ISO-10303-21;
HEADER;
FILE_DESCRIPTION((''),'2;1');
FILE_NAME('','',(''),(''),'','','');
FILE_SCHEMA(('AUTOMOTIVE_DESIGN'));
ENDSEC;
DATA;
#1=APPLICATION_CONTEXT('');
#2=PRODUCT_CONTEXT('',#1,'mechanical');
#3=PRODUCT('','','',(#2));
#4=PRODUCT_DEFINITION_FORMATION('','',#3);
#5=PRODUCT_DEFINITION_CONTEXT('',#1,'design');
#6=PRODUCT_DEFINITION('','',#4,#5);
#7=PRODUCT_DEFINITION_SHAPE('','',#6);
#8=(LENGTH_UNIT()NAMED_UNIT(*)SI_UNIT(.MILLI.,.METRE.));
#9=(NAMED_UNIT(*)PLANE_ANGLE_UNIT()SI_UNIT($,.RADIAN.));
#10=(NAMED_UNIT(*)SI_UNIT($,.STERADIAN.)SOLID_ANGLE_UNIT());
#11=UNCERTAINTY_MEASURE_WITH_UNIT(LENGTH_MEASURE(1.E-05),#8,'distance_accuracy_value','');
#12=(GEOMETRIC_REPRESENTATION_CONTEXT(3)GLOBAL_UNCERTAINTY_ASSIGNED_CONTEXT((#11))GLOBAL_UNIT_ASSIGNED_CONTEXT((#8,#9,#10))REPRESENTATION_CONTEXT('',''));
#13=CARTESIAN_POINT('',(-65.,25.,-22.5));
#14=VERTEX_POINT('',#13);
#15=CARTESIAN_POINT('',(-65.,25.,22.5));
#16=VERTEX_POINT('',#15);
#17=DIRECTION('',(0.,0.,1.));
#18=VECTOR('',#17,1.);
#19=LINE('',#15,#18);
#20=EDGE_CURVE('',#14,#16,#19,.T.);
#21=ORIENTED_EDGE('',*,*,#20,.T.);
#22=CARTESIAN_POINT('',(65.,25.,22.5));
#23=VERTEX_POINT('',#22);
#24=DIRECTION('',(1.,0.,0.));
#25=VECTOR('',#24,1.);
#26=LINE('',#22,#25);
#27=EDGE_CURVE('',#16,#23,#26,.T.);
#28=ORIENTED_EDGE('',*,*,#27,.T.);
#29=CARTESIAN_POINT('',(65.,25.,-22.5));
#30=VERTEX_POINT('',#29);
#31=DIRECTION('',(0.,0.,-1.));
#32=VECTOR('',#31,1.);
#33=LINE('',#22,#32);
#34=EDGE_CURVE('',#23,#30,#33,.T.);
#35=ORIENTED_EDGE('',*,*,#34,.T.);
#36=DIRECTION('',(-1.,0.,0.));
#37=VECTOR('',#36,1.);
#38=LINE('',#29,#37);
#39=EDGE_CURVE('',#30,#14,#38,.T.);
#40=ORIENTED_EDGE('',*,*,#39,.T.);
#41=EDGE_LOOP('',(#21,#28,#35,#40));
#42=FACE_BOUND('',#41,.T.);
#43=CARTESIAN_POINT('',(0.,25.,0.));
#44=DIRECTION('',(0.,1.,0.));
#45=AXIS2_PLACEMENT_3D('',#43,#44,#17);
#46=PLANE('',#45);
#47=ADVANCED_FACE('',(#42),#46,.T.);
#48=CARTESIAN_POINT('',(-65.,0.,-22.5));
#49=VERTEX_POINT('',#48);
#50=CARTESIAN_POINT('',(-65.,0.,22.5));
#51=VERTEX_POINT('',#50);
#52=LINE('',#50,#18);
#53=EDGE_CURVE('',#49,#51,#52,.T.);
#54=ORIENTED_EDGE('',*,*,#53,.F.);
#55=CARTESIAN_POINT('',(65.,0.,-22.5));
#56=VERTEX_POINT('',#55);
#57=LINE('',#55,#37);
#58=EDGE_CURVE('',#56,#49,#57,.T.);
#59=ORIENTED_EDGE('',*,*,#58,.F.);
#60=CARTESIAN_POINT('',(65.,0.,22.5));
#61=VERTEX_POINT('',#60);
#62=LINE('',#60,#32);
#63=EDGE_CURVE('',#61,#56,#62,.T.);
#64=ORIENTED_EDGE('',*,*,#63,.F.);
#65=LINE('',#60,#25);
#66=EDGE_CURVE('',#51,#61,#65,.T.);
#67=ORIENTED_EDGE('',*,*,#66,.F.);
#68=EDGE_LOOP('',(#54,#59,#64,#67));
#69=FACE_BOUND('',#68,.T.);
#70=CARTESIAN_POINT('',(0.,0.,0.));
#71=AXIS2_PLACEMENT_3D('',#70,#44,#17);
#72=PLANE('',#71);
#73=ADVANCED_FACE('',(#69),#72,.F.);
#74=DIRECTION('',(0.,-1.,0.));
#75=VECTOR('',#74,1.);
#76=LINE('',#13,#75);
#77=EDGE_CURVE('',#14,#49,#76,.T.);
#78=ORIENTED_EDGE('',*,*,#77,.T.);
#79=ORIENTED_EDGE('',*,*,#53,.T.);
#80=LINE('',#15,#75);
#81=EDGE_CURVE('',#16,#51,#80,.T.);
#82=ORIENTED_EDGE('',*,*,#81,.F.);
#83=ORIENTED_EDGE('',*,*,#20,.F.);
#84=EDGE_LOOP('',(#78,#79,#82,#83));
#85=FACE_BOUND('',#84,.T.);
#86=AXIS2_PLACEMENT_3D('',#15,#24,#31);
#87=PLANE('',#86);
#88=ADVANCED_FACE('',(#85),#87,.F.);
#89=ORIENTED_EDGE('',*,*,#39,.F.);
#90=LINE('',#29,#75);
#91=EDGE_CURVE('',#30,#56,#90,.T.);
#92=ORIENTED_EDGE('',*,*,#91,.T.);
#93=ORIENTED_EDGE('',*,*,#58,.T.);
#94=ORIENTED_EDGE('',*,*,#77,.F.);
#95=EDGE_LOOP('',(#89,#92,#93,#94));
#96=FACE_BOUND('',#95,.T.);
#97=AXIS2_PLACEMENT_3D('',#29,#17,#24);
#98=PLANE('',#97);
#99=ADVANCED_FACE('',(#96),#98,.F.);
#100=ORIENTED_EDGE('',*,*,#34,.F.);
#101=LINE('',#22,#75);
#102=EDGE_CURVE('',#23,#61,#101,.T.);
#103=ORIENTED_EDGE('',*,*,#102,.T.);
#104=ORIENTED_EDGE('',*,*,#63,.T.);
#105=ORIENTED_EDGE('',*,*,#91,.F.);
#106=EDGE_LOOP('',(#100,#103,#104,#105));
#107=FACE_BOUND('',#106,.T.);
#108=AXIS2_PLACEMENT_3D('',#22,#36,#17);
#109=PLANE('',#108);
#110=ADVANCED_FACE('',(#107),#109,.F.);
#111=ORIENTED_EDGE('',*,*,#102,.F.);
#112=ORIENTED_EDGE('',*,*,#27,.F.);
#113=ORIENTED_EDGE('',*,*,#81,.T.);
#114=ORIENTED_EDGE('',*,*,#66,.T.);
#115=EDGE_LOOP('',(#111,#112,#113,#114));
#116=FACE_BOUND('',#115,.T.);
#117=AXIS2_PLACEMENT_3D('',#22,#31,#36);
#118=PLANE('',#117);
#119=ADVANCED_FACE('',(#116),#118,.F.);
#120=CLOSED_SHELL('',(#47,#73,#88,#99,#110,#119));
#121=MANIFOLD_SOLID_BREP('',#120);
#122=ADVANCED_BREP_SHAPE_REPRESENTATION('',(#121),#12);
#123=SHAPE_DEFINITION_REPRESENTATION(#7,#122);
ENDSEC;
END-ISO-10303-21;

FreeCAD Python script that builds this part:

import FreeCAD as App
import Part
import Sketcher
from FreeCAD import Vector

doc = App.newDocument("Part")
body = doc.addObject("PartDesign::Body", "Body")

sketch1 = body.newObject("Sketcher::SketchObject", "Sketch")
sketch1.AttachmentSupport = (doc.getObject("XZ_Plane"), [""])
sketch1.MapMode = "FlatFace"
sketch1.addGeometry([
    Part.LineSegment(Vector(-65, -22, 0), Vector(-65, 22, 0)),
    Part.LineSegment(Vector(-65, 22, 0), Vector(65, 22, 0)),
    Part.LineSegment(Vector(65, 22, 0), Vector(65, -22, 0)),
    Part.LineSegment(Vector(65, -22, 0), Vector(-65, -22, 0)),
], False)
sketch1.addConstraint([
    Sketcher.Constraint("Coincident", 0, 2, 1, 1),
    Sketcher.Constraint("Coincident", 1, 2, 2, 1),
    Sketcher.Constraint("Coincident", 2, 2, 3, 1),
    Sketcher.Constraint("Coincident", 3, 2, 0, 1),
    Sketcher.Constraint("Vertical", 0),
    Sketcher.Constraint("Horizontal", 1),
    Sketcher.Constraint("Vertical", 2),
    Sketcher.Constraint("Horizontal", 3),
    Sketcher.Constraint("Symmetric", 0, 2, 2, 2, -1, 1),
    Sketcher.Constraint("DistanceX", 1, 1, 1, 2, 130.0),
    Sketcher.Constraint("DistanceY", 0, 1, 0, 2, 45.0),
])
pad1 = body.newObject("PartDesign::Pad", "Pad")
pad1.Profile = sketch1
pad1.Length = 25
pad1.Reversed = True

doc.recompute()
